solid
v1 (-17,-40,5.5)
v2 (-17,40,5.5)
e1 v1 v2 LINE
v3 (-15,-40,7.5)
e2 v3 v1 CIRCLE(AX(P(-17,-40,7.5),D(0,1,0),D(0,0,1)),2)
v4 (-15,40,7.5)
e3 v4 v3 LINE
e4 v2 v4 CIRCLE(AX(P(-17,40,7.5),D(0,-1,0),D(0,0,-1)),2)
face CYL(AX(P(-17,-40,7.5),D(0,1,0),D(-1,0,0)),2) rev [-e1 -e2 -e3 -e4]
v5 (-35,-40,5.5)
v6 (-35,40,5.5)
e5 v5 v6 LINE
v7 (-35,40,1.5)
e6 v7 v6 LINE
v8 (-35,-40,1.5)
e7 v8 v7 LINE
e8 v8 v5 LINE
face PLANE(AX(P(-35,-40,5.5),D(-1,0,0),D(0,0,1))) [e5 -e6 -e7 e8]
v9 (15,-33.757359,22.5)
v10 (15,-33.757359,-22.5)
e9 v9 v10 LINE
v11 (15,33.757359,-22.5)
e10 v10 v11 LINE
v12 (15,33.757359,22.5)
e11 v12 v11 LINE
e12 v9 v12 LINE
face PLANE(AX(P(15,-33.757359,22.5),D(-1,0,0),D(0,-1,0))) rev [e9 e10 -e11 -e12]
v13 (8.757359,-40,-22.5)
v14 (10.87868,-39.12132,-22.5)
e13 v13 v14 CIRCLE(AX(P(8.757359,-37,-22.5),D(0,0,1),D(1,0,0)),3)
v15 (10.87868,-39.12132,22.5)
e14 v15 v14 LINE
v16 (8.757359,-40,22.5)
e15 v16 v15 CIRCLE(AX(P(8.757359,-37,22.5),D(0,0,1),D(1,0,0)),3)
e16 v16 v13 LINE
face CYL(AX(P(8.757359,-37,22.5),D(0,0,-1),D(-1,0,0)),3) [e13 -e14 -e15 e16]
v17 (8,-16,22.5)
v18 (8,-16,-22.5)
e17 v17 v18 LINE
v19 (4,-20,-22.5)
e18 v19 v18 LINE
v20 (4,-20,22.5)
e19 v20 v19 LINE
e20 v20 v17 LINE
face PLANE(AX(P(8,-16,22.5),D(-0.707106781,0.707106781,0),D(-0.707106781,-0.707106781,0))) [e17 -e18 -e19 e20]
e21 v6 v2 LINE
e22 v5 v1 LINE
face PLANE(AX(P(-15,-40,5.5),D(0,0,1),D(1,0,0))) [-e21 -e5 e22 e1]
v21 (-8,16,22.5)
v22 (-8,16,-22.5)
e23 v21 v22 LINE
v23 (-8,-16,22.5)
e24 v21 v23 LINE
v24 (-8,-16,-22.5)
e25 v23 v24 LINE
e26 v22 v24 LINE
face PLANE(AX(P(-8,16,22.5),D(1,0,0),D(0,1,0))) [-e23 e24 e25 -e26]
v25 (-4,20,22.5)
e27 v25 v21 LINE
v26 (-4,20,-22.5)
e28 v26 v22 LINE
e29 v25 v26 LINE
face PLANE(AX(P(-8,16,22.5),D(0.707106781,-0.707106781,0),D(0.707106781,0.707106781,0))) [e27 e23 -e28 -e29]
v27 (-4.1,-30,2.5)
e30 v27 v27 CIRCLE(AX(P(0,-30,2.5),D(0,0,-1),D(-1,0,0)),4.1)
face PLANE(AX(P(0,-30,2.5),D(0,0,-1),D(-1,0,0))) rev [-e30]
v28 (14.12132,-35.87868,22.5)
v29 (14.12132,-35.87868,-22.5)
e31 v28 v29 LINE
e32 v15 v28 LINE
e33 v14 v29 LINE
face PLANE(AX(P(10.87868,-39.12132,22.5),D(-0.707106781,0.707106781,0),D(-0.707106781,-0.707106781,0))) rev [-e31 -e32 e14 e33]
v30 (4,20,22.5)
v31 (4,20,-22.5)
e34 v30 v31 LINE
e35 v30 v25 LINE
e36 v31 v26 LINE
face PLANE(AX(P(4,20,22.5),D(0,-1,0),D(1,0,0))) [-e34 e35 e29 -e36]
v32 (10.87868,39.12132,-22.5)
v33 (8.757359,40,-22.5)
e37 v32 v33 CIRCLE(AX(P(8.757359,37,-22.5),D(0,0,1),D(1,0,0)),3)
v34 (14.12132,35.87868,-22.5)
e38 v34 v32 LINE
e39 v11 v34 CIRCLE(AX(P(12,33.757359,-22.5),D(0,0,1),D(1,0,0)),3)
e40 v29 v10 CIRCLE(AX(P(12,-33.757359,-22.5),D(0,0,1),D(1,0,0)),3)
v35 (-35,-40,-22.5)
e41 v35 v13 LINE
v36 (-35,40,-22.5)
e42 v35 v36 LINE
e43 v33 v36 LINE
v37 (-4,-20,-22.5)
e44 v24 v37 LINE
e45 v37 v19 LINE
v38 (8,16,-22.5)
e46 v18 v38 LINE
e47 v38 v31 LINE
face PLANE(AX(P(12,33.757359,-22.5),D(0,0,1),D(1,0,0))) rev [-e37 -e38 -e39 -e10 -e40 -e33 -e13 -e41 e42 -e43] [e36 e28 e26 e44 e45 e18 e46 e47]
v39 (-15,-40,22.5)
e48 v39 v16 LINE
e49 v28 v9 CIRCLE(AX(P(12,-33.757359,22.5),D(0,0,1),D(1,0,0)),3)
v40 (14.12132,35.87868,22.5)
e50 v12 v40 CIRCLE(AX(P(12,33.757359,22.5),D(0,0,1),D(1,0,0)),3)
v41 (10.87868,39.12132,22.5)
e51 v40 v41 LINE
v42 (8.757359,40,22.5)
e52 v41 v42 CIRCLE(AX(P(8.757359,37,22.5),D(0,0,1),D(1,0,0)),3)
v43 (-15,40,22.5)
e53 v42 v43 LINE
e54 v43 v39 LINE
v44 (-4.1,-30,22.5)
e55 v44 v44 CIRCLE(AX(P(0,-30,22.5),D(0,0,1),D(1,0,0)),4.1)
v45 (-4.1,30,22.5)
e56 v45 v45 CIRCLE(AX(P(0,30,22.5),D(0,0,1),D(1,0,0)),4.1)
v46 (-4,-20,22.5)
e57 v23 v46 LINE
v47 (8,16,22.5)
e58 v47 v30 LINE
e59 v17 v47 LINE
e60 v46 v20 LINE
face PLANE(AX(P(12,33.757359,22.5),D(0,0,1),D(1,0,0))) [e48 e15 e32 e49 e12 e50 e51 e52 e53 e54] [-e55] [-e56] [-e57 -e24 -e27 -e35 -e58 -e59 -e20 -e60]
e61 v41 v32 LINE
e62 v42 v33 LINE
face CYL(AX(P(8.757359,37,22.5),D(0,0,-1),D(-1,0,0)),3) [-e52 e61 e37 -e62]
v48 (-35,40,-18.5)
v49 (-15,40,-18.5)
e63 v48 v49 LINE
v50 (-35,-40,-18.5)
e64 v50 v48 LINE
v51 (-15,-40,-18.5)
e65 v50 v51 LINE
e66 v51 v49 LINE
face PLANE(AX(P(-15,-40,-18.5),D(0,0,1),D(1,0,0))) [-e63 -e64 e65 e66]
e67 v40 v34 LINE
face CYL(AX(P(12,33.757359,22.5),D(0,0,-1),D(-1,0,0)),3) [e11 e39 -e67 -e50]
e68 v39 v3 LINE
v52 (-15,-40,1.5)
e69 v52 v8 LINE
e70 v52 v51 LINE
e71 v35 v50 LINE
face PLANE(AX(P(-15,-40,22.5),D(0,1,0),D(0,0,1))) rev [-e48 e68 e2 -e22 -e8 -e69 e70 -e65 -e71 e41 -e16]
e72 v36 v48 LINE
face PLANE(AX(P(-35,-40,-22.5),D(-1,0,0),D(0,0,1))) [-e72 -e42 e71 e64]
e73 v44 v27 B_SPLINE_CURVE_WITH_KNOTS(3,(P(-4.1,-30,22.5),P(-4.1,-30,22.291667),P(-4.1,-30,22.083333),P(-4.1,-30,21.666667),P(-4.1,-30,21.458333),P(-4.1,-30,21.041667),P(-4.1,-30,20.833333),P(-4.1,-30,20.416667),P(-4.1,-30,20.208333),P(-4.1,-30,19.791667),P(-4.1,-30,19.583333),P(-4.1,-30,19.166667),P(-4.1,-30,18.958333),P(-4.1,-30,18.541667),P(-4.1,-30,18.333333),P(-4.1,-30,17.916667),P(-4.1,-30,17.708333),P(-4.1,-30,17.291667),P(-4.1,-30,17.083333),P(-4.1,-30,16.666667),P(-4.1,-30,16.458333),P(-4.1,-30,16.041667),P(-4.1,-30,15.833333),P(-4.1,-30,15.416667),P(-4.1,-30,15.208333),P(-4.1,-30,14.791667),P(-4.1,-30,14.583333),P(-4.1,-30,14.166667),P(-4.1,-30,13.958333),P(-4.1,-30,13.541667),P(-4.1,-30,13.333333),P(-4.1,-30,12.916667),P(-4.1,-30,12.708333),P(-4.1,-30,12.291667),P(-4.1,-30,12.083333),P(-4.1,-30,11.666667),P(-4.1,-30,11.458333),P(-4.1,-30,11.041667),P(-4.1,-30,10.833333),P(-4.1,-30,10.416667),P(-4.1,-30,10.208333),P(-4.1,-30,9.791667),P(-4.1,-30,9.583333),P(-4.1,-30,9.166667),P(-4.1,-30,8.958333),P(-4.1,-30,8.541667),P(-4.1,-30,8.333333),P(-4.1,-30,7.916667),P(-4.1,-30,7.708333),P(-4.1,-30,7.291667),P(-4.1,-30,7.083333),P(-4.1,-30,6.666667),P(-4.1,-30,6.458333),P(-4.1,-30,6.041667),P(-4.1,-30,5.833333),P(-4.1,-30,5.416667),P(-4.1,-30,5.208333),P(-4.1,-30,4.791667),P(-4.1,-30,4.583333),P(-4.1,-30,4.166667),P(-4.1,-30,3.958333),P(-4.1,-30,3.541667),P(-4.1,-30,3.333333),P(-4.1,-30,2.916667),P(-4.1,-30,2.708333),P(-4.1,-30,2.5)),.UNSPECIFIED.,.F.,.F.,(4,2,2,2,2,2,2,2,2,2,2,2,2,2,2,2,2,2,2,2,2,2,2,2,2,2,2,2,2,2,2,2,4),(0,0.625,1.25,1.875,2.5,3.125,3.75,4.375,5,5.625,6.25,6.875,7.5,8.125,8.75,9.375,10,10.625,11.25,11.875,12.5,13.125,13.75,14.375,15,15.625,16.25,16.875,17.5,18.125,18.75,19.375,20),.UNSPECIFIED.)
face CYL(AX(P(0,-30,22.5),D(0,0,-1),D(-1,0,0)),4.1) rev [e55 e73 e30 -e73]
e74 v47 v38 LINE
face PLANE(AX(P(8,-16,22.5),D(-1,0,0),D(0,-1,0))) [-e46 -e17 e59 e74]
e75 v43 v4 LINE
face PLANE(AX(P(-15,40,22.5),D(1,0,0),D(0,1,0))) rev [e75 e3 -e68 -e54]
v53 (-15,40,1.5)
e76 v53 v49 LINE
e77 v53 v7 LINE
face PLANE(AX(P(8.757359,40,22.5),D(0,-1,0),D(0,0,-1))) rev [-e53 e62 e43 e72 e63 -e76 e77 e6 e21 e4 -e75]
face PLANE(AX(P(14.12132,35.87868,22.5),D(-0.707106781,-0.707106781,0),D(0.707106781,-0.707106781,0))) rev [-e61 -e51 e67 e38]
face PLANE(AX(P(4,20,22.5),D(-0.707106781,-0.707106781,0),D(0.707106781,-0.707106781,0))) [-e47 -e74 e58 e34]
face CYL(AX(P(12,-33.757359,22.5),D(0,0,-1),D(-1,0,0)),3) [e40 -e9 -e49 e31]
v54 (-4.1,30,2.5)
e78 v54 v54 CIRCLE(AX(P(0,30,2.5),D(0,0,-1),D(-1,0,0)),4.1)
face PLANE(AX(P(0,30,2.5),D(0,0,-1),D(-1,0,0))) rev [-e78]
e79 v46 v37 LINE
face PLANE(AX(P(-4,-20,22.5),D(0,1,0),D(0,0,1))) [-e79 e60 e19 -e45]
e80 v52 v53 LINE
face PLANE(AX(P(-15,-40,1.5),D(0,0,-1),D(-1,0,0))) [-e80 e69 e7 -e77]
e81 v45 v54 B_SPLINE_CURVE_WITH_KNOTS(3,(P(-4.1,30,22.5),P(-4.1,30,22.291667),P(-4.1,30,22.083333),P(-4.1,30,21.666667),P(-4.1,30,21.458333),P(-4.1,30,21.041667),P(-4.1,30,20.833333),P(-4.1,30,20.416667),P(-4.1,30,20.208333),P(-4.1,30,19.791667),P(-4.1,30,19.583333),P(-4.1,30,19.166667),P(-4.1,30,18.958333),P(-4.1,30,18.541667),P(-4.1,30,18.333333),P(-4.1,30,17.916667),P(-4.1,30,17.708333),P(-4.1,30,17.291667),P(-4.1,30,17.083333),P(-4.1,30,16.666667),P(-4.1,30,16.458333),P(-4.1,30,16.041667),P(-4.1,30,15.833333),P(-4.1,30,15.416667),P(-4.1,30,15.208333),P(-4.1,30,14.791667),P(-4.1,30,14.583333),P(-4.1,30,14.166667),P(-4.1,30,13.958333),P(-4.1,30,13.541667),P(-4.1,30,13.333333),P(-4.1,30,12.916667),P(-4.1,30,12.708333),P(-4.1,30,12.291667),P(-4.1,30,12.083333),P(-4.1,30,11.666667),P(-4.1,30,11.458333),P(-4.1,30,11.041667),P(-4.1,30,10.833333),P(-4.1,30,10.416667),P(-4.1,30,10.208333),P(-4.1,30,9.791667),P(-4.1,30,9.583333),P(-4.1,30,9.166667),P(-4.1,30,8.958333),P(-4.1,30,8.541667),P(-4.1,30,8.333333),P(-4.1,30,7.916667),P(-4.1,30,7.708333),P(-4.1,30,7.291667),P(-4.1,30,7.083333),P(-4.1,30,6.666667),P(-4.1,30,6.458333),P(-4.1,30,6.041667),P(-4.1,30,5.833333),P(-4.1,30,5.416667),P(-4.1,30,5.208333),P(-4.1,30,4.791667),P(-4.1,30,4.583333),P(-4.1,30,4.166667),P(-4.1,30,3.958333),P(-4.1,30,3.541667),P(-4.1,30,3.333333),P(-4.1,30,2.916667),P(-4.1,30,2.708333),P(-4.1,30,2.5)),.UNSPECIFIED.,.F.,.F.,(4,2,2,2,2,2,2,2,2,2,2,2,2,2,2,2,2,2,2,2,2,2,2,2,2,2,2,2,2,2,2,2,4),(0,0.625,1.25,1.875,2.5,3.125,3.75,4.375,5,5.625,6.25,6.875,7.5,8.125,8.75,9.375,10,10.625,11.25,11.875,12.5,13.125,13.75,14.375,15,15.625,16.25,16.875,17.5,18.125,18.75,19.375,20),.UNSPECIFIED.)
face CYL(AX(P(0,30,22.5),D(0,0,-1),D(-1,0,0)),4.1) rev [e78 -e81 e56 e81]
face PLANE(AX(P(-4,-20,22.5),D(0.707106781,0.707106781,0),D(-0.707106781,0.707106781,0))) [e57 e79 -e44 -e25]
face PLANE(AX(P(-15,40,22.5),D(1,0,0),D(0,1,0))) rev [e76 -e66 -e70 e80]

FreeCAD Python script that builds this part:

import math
import FreeCAD as App
import Part
import Sketcher

V = App.Vector
Q = App.Units.Quantity


def edges_at(feature, points):
    """Names of the edges that pass closest to the given points."""
    edges = feature.Shape.Edges
    near = lambda p: min(range(len(edges)), key=lambda i: edges[i].distToShape(Part.Vertex(*p))[0])
    return sorted({f"Edge{near(p) + 1}" for p in points})

doc = App.newDocument("Part")
body = doc.addObject("PartDesign::Body", "Body")

sketch1 = body.newObject("Sketcher::SketchObject", "Sketch")
sketch1.AttachmentSupport = (doc.getObject("XY_Plane"), [""])
sketch1.MapMode = "FlatFace"
sketch1.addGeometry(Part.LineSegment(V(14.1, 35.9, 0), V(10.9, 39.1, 0)), False)
sketch1.addGeometry(Part.ArcOfCircle(Part.Circle(V(8.8, 37, 0), V(0, 0, 1), 3), math.radians(45), math.radians(90)), False)
sketch1.addGeometry(Part.LineSegment(V(8.8, 40, 0), V(-15, 40, 0)), False)
sketch1.addGeometry(Part.LineSegment(V(-15, 40, 0), V(-15, -40, 0)), False)
sketch1.addGeometry(Part.LineSegment(V(-15, -40, 0), V(8.8, -40, 0)), False)
sketch1.addGeometry(Part.ArcOfCircle(Part.Circle(V(8.8, -37, 0), V(0, 0, 1), 3), math.radians(-90), math.radians(-45)), False)
sketch1.addGeometry(Part.LineSegment(V(10.9, -39.1, 0), V(14.1, -35.9, 0)), False)
sketch1.addGeometry(Part.ArcOfCircle(Part.Circle(V(12, -33.8, 0), V(0, 0, 1), 3), math.radians(-45), math.radians(0)), False)
sketch1.addGeometry(Part.LineSegment(V(15, -33.8, 0), V(15, 33.8, 0)), False)
sketch1.addGeometry(Part.ArcOfCircle(Part.Circle(V(12, 33.8, 0), V(0, 0, 1), 3), math.radians(0), math.radians(45)), False)
sketch1.addGeometry(Part.Circle(V(0, -30, 0), V(0, 0, 1), 4.1), False)
sketch1.addGeometry(Part.Circle(V(0, 30, 0), V(0, 0, 1), 4.1), False)
sketch1.addGeometry(Part.LineSegment(V(4, -20, 0), V(-4, -20, 0)), False)
sketch1.addGeometry(Part.LineSegment(V(-4, -20, 0), V(-8, -16, 0)), False)
sketch1.addGeometry(Part.LineSegment(V(-8, -16, 0), V(-8, 16, 0)), False)
sketch1.addGeometry(Part.LineSegment(V(-8, 16, 0), V(-4, 20, 0)), False)
sketch1.addGeometry(Part.LineSegment(V(-4, 20, 0), V(4, 20, 0)), False)
sketch1.addGeometry(Part.LineSegment(V(4, 20, 0), V(8, 16, 0)), False)
sketch1.addGeometry(Part.LineSegment(V(8, 16, 0), V(8, -16, 0)), False)
sketch1.addGeometry(Part.LineSegment(V(8, -16, 0), V(4, -20, 0)), False)
sketch1.addConstraint(Sketcher.Constraint("Tangent", 0, 2, 1, 1))
sketch1.addConstraint(Sketcher.Constraint("Tangent", 1, 2, 2, 1))
sketch1.addConstraint(Sketcher.Constraint("Coincident", 2, 2, 3, 1))
sketch1.addConstraint(Sketcher.Constraint("Coincident", 3, 2, 4, 1))
sketch1.addConstraint(Sketcher.Constraint("Tangent", 4, 2, 5, 1))
sketch1.addConstraint(Sketcher.Constraint("Tangent", 5, 2, 6, 1))
sketch1.addConstraint(Sketcher.Constraint("Tangent", 6, 2, 7, 1))
sketch1.addConstraint(Sketcher.Constraint("Tangent", 7, 2, 8, 1))
sketch1.addConstraint(Sketcher.Constraint("Tangent", 8, 2, 9, 1))
sketch1.addConstraint(Sketcher.Constraint("Tangent", 9, 2, 0, 1))
sketch1.addConstraint(Sketcher.Constraint("Coincident", 12, 2, 13, 1))
sketch1.addConstraint(Sketcher.Constraint("Coincident", 13, 2, 14, 1))
sketch1.addConstraint(Sketcher.Constraint("Coincident", 14, 2, 15, 1))
sketch1.addConstraint(Sketcher.Constraint("Coincident", 15, 2, 16, 1))
sketch1.addConstraint(Sketcher.Constraint("Coincident", 16, 2, 17, 1))
sketch1.addConstraint(Sketcher.Constraint("Coincident", 17, 2, 18, 1))
sketch1.addConstraint(Sketcher.Constraint("Coincident", 18, 2, 19, 1))
sketch1.addConstraint(Sketcher.Constraint("Coincident", 19, 2, 12, 1))
sketch1.addConstraint(Sketcher.Constraint("Horizontal", 2))
sketch1.addConstraint(Sketcher.Constraint("Vertical", 3))
sketch1.addConstraint(Sketcher.Constraint("Horizontal", 4))
sketch1.addConstraint(Sketcher.Constraint("Vertical", 8))
sketch1.addConstraint(Sketcher.Constraint("Horizontal", 12))
sketch1.addConstraint(Sketcher.Constraint("Vertical", 14))
sketch1.addConstraint(Sketcher.Constraint("Horizontal", 16))
sketch1.addConstraint(Sketcher.Constraint("Vertical", 18))
sketch1.addConstraint(Sketcher.Constraint("Equal", 1, 5))
sketch1.addConstraint(Sketcher.Constraint("Equal", 5, 7))
sketch1.addConstraint(Sketcher.Constraint("Equal", 7, 9))
sketch1.addConstraint(Sketcher.Constraint("Equal", 10, 11))
sketch1.addConstraint(Sketcher.Constraint("Symmetric", 10, 3, 11, 3, -1, 1))
sketch1.addConstraint(Sketcher.Constraint("Symmetric", 12, 2, 16, 2, -1, 1))
sketch1.addConstraint(Sketcher.Constraint("Symmetric", 13, 2, 17, 2, -1, 1))
sketch1.addConstraint(Sketcher.Constraint("Symmetric", 1, 3, 5, 3, -1))
sketch1.addConstraint(Sketcher.Constraint("PointOnObject", 10, 3, -2))
sketch1.addConstraint(Sketcher.Constraint("Perpendicular", 0, 6))
sketch1.addConstraint(Sketcher.Constraint("Perpendicular", 6, 13))
sketch1.addConstraint(Sketcher.Constraint("Perpendicular", 13, 15))
sketch1.addConstraint(Sketcher.Constraint("Perpendicular", 17, 19))
sketch1.addConstraint(Sketcher.Constraint("Horizontal", 14, 2, 17, 2))
sketch1.addConstraint(Sketcher.Constraint("Horizontal", 13, 2, 18, 2))
sketch1.addConstraint(Sketcher.Constraint("Vertical", 0, 2, 5, 2))
sketch1.addConstraint(Sketcher.Constraint("Radius", 1, Q("3 mm")))
sketch1.addConstraint(Sketcher.Constraint("Diameter", 10, Q("8.2 mm")))
sketch1.addConstraint(Sketcher.Constraint("DistanceX", 12, 2, 12, 1, Q("8 mm")))
sketch1.addConstraint(Sketcher.Constraint("DistanceY", 3, 2, 3, 1, Q("80 mm")))
sketch1.addConstraint(Sketcher.Constraint("DistanceY", 14, 1, 14, 2, Q("32 mm")))
sketch1.addConstraint(Sketcher.Constraint("DistanceX", -1, 1, 7, 3, Q("12 mm")))
sketch1.addConstraint(Sketcher.Constraint("DistanceY", 10, 3, -1, 1, Q("30 mm")))
sketch1.addConstraint(Sketcher.Constraint("DistanceX", 2, 2, -1, 1, Q("15 mm")))
sketch1.addConstraint(Sketcher.Constraint("DistanceY", 12, 2, -1, 1, Q("20 mm")))
sketch1.addConstraint(Sketcher.Constraint("DistanceX", 2, 2, 2, 1, Q("23.757359 mm")))
pad1 = body.newObject("PartDesign::Pad", "Pad")
pad1.Profile = sketch1
pad1.Length = 45
pad1.Midplane = True

sketch2 = body.newObject("Sketcher::SketchObject", "Sketch001")
sketch2.AttachmentSupport = (doc.getObject("XZ_Plane"), [""])
sketch2.MapMode = "FlatFace"
sketch2.AttachmentOffset = App.Placement(V(0, 0, -40), App.Rotation())
sketch2.addGeometry(Part.LineSegment(V(-35, -22.5, 0), V(-35, -18.5, 0)), False)
sketch2.addGeometry(Part.LineSegment(V(-35, -18.5, 0), V(-15, -18.5, 0)), False)
sketch2.addGeometry(Part.LineSegment(V(-15, -18.5, 0), V(-15, -22.5, 0)), False)
sketch2.addGeometry(Part.LineSegment(V(-15, -22.5, 0), V(-35, -22.5, 0)), False)
sketch2.addGeometry(Part.LineSegment(V(-35, 1.5, 0), V(-35, 5.5, 0)), False)
sketch2.addGeometry(Part.LineSegment(V(-35, 5.5, 0), V(-15, 5.5, 0)), False)
sketch2.addGeometry(Part.LineSegment(V(-15, 5.5, 0), V(-15, 1.5, 0)), False)
sketch2.addGeometry(Part.LineSegment(V(-15, 1.5, 0), V(-35, 1.5, 0)), False)
sketch2.addConstraint(Sketcher.Constraint("Coincident", 0, 2, 1, 1))
sketch2.addConstraint(Sketcher.Constraint("Coincident", 1, 2, 2, 1))
sketch2.addConstraint(Sketcher.Constraint("Coincident", 2, 2, 3, 1))
sketch2.addConstraint(Sketcher.Constraint("Coincident", 3, 2, 0, 1))
sketch2.addConstraint(Sketcher.Constraint("Coincident", 4, 2, 5, 1))
sketch2.addConstraint(Sketcher.Constraint("Coincident", 5, 2, 6, 1))
sketch2.addConstraint(Sketcher.Constraint("Coincident", 6, 2, 7, 1))
sketch2.addConstraint(Sketcher.Constraint("Coincident", 7, 2, 4, 1))
sketch2.addConstraint(Sketcher.Constraint("Vertical", 0))
sketch2.addConstraint(Sketcher.Constraint("Horizontal", 1))
sketch2.addConstraint(Sketcher.Constraint("Vertical", 2))
sketch2.addConstraint(Sketcher.Constraint("Horizontal", 3))
sketch2.addConstraint(Sketcher.Constraint("Vertical", 4))
sketch2.addConstraint(Sketcher.Constraint("Horizontal", 5))
sketch2.addConstraint(Sketcher.Constraint("Vertical", 6))
sketch2.addConstraint(Sketcher.Constraint("Horizontal", 7))
sketch2.addConstraint(Sketcher.Constraint("Vertical", 3, 2, 4, 2))
sketch2.addConstraint(Sketcher.Constraint("Vertical", 2, 2, 5, 2))
sketch2.addConstraint(Sketcher.Constraint("Equal", 2, 4))
sketch2.addConstraint(Sketcher.Constraint("DistanceX", 1, 1, 1, 2, Q("20 mm")))
sketch2.addConstraint(Sketcher.Constraint("DistanceY", 0, 1, 0, 2, Q("4 mm")))
sketch2.addConstraint(Sketcher.Constraint("DistanceX", 0, 2, -1, 1, Q("35 mm")))
sketch2.addConstraint(Sketcher.Constraint("DistanceY", 0, 2, 4, 2, Q("24 mm")))
sketch2.addConstraint(Sketcher.Constraint("DistanceY", 0, 2, -1, 1, Q("18.5 mm")))
pad2 = body.newObject("PartDesign::Pad", "Pad001")
pad2.Profile = sketch2
pad2.Length = 80
doc.recompute()

fillet = body.newObject("PartDesign::Fillet", "Fillet")
fillet.Base = (pad2, edges_at(pad2, [(-15, 0, 5.5)]))
fillet.Radius = 2

sketch3 = body.newObject("Sketcher::SketchObject", "Sketch002")
sketch3.AttachmentSupport = (doc.getObject("XY_Plane"), [""])
sketch3.MapMode = "FlatFace"
sketch3.AttachmentOffset = App.Placement(V(0, 0, -22.5), App.Rotation())
sketch3.addGeometry(Part.Circle(V(0, -30, 0), V(0, 0, 1), 4.1), False)
sketch3.addGeometry(Part.Circle(V(0, 30, 0), V(0, 0, 1), 4.1), False)
sketch3.addConstraint(Sketcher.Constraint("Equal", 0, 1))
sketch3.addConstraint(Sketcher.Constraint("Symmetric", 0, 3, 1, 3, -1, 1))
sketch3.addConstraint(Sketcher.Constraint("PointOnObject", 0, 3, -2))
sketch3.addConstraint(Sketcher.Constraint("Diameter", 0, Q("8.2 mm")))
sketch3.addConstraint(Sketcher.Constraint("DistanceY", 0, 3, -1, 1, Q("30 mm")))
pad3 = body.newObject("PartDesign::Pad", "Pad002")
pad3.Profile = sketch3
pad3.Length = 25

doc.recompute()
